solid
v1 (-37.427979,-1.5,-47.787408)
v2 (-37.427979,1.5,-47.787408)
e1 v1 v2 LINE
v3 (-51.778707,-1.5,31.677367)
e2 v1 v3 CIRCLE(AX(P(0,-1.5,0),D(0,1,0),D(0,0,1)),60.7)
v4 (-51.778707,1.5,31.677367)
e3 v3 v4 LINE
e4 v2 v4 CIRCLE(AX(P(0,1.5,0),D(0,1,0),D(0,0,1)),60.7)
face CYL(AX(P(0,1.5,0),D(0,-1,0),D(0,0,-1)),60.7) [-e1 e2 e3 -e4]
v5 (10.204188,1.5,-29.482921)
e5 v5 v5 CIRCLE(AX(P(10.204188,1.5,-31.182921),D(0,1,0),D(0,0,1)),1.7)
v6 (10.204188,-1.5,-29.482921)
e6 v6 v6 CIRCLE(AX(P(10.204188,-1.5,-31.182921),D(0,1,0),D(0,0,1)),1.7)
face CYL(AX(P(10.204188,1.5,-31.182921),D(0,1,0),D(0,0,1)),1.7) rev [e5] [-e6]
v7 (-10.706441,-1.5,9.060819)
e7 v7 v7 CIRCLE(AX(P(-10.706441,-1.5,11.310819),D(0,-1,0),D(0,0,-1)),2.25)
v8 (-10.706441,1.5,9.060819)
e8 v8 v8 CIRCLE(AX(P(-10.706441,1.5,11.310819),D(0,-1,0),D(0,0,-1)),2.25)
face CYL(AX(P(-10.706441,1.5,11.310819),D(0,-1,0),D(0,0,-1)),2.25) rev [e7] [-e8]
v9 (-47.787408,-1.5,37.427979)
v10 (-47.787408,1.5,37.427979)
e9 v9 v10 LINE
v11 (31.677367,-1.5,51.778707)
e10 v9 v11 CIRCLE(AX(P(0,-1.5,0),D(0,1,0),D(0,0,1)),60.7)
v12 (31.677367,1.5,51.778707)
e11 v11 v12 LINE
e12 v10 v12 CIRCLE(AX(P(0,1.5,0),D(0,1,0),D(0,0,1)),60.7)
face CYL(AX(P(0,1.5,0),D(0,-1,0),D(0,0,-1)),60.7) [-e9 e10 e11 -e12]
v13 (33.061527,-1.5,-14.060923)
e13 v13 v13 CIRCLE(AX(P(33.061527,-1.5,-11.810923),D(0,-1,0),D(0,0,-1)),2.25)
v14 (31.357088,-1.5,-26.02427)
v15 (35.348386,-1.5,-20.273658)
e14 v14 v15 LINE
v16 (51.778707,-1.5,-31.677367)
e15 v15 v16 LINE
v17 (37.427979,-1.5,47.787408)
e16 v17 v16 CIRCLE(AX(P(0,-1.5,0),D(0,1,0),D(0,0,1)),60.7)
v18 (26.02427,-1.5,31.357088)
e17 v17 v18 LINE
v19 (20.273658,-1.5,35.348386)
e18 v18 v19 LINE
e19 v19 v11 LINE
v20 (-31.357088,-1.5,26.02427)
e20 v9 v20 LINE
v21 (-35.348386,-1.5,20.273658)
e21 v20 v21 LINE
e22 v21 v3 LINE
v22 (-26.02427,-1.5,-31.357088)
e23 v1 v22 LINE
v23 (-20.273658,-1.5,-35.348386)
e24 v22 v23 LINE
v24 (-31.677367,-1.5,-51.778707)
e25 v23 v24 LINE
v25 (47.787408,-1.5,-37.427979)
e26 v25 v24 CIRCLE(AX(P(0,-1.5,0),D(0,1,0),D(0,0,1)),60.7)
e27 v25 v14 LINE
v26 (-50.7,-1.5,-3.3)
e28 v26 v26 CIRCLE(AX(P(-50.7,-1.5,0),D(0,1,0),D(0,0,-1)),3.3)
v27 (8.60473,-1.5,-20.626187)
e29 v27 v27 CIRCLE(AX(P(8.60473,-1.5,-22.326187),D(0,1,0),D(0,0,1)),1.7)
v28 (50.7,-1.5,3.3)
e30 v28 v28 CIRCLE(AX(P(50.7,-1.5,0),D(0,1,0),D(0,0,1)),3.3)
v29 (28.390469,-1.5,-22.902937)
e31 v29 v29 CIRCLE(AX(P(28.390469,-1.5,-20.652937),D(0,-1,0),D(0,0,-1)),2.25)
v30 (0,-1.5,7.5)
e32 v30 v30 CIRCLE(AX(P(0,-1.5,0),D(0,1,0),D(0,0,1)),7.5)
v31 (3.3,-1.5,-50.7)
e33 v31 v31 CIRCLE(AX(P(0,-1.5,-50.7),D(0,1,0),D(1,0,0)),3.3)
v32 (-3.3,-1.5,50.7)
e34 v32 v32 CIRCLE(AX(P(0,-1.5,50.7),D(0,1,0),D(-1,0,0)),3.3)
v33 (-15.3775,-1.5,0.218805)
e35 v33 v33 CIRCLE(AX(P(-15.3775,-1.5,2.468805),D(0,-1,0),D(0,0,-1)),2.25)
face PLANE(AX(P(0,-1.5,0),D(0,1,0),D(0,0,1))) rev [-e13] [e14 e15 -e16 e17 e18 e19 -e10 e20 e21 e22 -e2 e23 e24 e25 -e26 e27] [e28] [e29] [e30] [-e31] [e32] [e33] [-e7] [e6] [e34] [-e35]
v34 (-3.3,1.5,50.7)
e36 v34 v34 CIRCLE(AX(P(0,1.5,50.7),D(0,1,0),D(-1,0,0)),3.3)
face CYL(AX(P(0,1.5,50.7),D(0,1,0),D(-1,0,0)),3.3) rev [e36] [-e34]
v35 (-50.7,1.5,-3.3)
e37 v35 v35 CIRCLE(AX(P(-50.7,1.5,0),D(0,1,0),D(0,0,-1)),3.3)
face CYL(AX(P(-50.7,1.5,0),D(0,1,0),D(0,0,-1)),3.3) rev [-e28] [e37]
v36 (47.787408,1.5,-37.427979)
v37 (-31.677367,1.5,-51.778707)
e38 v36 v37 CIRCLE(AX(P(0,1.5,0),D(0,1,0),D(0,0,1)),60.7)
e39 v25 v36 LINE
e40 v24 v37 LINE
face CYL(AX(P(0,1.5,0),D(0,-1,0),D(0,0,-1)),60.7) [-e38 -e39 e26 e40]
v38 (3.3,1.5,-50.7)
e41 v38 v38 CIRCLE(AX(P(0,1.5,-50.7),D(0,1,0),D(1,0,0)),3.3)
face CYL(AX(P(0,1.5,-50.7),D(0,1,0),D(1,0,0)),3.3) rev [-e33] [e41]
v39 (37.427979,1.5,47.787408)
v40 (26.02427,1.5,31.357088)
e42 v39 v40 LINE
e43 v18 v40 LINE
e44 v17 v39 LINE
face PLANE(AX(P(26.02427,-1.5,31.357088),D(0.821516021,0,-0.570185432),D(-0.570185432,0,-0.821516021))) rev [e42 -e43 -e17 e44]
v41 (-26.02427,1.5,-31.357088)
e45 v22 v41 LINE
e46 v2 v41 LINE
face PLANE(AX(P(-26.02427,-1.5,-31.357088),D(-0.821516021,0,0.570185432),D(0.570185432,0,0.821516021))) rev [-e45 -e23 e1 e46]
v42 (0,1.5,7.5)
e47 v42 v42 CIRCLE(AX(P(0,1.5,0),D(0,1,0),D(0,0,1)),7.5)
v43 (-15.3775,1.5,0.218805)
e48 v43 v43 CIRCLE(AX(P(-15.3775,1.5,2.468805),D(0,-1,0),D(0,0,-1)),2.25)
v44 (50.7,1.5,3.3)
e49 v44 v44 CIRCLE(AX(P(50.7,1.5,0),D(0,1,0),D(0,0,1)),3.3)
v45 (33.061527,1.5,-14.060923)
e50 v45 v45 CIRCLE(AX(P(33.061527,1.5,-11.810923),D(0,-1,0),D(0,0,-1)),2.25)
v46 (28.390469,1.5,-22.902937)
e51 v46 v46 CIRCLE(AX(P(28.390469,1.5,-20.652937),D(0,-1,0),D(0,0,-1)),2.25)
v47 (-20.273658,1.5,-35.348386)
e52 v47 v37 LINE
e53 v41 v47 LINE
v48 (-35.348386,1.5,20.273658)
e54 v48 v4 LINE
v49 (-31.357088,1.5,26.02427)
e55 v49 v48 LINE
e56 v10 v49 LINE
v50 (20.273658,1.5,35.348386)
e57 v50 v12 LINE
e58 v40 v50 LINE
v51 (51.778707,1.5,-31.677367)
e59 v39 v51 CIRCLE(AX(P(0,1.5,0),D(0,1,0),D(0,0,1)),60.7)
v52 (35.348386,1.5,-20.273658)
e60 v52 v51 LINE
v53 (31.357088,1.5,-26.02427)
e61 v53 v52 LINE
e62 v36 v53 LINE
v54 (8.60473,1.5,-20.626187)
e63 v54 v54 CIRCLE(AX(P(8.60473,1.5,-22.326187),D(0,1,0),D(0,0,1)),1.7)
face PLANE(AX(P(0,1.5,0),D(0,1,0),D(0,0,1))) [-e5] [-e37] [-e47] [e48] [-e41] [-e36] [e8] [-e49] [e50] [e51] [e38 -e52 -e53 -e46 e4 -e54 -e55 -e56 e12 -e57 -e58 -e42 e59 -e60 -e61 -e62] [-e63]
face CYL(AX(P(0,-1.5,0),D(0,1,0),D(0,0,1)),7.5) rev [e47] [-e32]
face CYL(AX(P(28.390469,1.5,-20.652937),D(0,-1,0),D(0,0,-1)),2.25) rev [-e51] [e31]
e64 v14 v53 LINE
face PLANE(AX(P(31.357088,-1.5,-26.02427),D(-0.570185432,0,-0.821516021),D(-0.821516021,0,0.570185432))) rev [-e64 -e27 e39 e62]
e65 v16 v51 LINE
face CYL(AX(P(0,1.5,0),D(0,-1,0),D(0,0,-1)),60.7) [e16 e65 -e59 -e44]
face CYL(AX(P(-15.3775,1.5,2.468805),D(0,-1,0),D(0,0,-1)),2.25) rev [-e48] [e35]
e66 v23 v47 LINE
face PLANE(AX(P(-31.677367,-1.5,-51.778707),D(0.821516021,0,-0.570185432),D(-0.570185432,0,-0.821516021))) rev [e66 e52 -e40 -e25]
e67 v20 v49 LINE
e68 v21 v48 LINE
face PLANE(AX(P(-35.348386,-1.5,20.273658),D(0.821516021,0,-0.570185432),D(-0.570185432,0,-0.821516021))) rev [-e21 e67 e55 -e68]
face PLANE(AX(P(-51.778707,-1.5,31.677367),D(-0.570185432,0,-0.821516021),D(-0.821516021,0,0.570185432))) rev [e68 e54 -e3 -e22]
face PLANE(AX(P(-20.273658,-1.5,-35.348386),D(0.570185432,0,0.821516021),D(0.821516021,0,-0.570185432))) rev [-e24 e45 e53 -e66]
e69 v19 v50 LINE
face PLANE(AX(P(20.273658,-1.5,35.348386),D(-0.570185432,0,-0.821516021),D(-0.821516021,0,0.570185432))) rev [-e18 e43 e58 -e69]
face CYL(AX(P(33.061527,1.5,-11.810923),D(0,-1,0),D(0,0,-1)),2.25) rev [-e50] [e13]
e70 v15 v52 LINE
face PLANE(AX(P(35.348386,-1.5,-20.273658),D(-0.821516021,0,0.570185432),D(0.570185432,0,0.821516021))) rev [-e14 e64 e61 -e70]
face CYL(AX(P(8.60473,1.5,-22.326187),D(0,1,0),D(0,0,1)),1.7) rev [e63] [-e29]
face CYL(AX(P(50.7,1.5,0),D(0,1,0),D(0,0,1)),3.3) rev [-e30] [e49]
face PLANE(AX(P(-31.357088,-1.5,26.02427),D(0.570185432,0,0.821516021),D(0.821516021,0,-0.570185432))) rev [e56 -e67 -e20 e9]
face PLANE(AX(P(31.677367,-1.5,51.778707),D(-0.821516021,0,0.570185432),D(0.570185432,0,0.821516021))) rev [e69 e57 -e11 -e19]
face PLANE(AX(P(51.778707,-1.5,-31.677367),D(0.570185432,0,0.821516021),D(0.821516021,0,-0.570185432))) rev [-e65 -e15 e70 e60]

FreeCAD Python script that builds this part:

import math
import FreeCAD as App
import Part
import Sketcher
from FreeCAD import Vector

doc = App.newDocument("Part")
body = doc.addObject("PartDesign::Body", "Body")

sketch1 = body.newObject("Sketcher::SketchObject", "Sketch")
sketch1.AttachmentSupport = (doc.getObject("XZ_Plane"), [""])
sketch1.MapMode = "FlatFace"
sketch1.addGeometry(Part.Circle(Vector(0, 0, 0), Vector(0, 0, 1), 61), False)
sketch1.addConstraint(Sketcher.Constraint("Coincident", 0, 3, -1, 1))
sketch1.addConstraint(Sketcher.Constraint("Diameter", 0, 121.4))
pad1 = body.newObject("PartDesign::Pad", "Pad")
pad1.Profile = sketch1
pad1.Length = 3
pad1.Midplane = True

sketch2 = body.newObject("Sketcher::SketchObject", "Sketch001")
sketch2.AttachmentSupport = (doc.getObject("XZ_Plane"), [""])
sketch2.MapMode = "FlatFace"
sketch2.AttachmentOffset = App.Placement(Vector(0, 0, -1.5), App.Rotation())
sketch2.addGeometry(Part.Circle(Vector(50.7, 0, 0), Vector(0, 0, 1), 3.3), False)
sketch2.addConstraint(Sketcher.Constraint("PointOnObject", 0, 3, -1))
sketch2.addConstraint(Sketcher.Constraint("Diameter", 0, 6.6))
sketch2.addConstraint(Sketcher.Constraint("DistanceX", -1, 1, 0, 3, 50.7))
doc.recompute()
hole = body.newObject("PartDesign::Hole", "Hole")
hole.Profile = sketch2
hole.ThreadType = "None"
hole.Diameter = 6.6
hole.DepthType = "ThroughAll"
hole.Reversed = True
doc.recompute()

polarpattern = body.newObject("PartDesign::PolarPattern", "PolarPattern")
polarpattern.Originals = [hole]
polarpattern.Axis = (doc.getObject("Y_Axis"), [""])
polarpattern.Angle = 360
polarpattern.Occurrences = 4
body.Tip = polarpattern

sketch3 = body.newObject("Sketcher::SketchObject", "Sketch002")
sketch3.AttachmentSupport = (doc.getObject("XZ_Plane"), [""])
sketch3.MapMode = "FlatFace"
sketch3.AttachmentOffset = App.Placement(Vector(0, 0, -1.5), App.Rotation())
sketch3.addGeometry(Part.Circle(Vector(0, 0, 0), Vector(0, 0, 1), 8), False)
sketch3.addConstraint(Sketcher.Constraint("Coincident", 0, 3, -1, 1))
sketch3.addConstraint(Sketcher.Constraint("Diameter", 0, 15.0))
pocket1 = body.newObject("PartDesign::Pocket", "Pocket")
pocket1.Profile = sketch3
pocket1.Type = "ThroughAll"
pocket1.Reversed = True

sketch4 = body.newObject("Sketcher::SketchObject", "Sketch003")
sketch4.AttachmentSupport = (doc.getObject("XZ_Plane"), [""])
sketch4.MapMode = "FlatFace"
sketch4.AttachmentOffset = App.Placement(Vector(0, 0, 1.5), App.Rotation())
sketch4.addGeometry(Part.Circle(Vector(-15.4, 2.5, 0), Vector(0, 0, 1), 2.2), False)
sketch4.addGeometry(Part.Circle(Vector(-10.7, 11.3, 0), Vector(0, 0, 1), 2.2), False)
sketch4.addGeometry(Part.Circle(Vector(28.4, -20.7, 0), Vector(0, 0, 1), 2.2), False)
sketch4.addGeometry(Part.Circle(Vector(33.1, -11.8, 0), Vector(0, 0, 1), 2.2), False)
sketch4.addConstraint(Sketcher.Constraint("Equal", 0, 1))
sketch4.addConstraint(Sketcher.Constraint("Equal", 1, 2))
sketch4.addConstraint(Sketcher.Constraint("Equal", 2, 3))
sketch4.addConstraint(Sketcher.Constraint("Diameter", 0, 4.5))
sketch4.addConstraint(Sketcher.Constraint("DistanceX", 0, 3, -1, 1, 15.3775))
sketch4.addConstraint(Sketcher.Constraint("DistanceX", 1, 3, -1, 1, 10.706441))
sketch4.addConstraint(Sketcher.Constraint("DistanceY", -1, 1, 1, 3, 11.310819))
sketch4.addConstraint(Sketcher.Constraint("DistanceX", -1, 1, 2, 3, 28.390469))
sketch4.addConstraint(Sketcher.Constraint("DistanceY", 2, 3, 0, 3, 23.121742))
sketch4.addConstraint(Sketcher.Constraint("DistanceX", 2, 3, 3, 3, 4.671059))
sketch4.addConstraint(Sketcher.Constraint("DistanceY", 3, 3, 1, 3, 23.121742))
sketch4.addConstraint(Sketcher.Constraint("DistanceY", -1, 1, 0, 3, 2.468805))
pocket2 = body.newObject("PartDesign::Pocket", "Pocket001")
pocket2.Profile = sketch4
pocket2.Type = "ThroughAll"

sketch5 = body.newObject("Sketcher::SketchObject", "Sketch004")
sketch5.AttachmentSupport = (doc.getObject("XZ_Plane"), [""])
sketch5.MapMode = "FlatFace"
sketch5.AttachmentOffset = App.Placement(Vector(0, 0, -1.5), App.Rotation())
sketch5.addGeometry(Part.LineSegment(Vector(20, 35, 0), Vector(32, 52, 0)), False)
sketch5.addGeometry(Part.ArcOfCircle(Part.Circle(Vector(0, 0, 0), Vector(0, 0, 1), 61), math.radians(51.93), math.radians(58.54)), False)
sketch5.addGeometry(Part.LineSegment(Vector(37, 48, 0), Vector(26, 31, 0)), False)
sketch5.addGeometry(Part.LineSegment(Vector(26, 31, 0), Vector(20, 35, 0)), False)
sketch5.addConstraint(Sketcher.Constraint("Coincident", 0, 2, 1, 2))
sketch5.addConstraint(Sketcher.Constraint("Coincident", 1, 1, 2, 1))
sketch5.addConstraint(Sketcher.Constraint("Coincident", 2, 2, 3, 1))
sketch5.addConstraint(Sketcher.Constraint("Coincident", 3, 2, 0, 1))
sketch5.addConstraint(Sketcher.Constraint("Coincident", 1, 3, -1, 1))
sketch5.addConstraint(Sketcher.Constraint("Parallel", 0, 2))
sketch5.addConstraint(Sketcher.Constraint("Perpendicular", 2, 3))
sketch5.addConstraint(Sketcher.Constraint("Equal", 0, 2))
sketch5.addConstraint(Sketcher.Constraint("Radius", 1, 60.7))
sketch5.addConstraint(Sketcher.Constraint("Distance", 0, 20.0))
sketch5.addConstraint(Sketcher.Constraint("Distance", 3, 7.0))
sketch5.addConstraint(Sketcher.Constraint("DistanceY", 2, 2, 3, 2, 3.991298))
pocket3 = body.newObject("PartDesign::Pocket", "Pocket002")
pocket3.Profile = sketch5
pocket3.Type = "ThroughAll"
pocket3.Reversed = True
doc.recompute()

polarpattern2 = body.newObject("PartDesign::PolarPattern", "PolarPattern001")
polarpattern2.Originals = [pocket3]
polarpattern2.Axis = (doc.getObject("Y_Axis"), [""])
polarpattern2.Angle = 360
polarpattern2.Occurrences = 4
body.Tip = polarpattern2

sketch6 = body.newObject("Sketcher::SketchObject", "Sketch005")
sketch6.AttachmentSupport = (doc.getObject("XZ_Plane"), [""])
sketch6.MapMode = "FlatFace"
sketch6.AttachmentOffset = App.Placement(Vector(0, 0, -1.5), App.Rotation())
sketch6.addGeometry(Part.Circle(Vector(8.6, -22.3, 0), Vector(0, 0, 1), 1.7), False)
sketch6.addGeometry(Part.Circle(Vector(10.2, -31.2, 0), Vector(0, 0, 1), 1.7), False)
sketch6.addConstraint(Sketcher.Constraint("Equal", 0, 1))
sketch6.addConstraint(Sketcher.Constraint("Diameter", 0, 3.4))
sketch6.addConstraint(Sketcher.Constraint("DistanceX", -1, 1, 0, 3, 8.60473))
sketch6.addConstraint(Sketcher.Constraint("DistanceY", 1, 3, -1, 1, 31.182921))
sketch6.addConstraint(Sketcher.Constraint("DistanceX", 0, 3, 1, 3, 1.599458))
sketch6.addConstraint(Sketcher.Constraint("DistanceY", 0, 3, -1, 1, 22.326187))
doc.recompute()
hole2 = body.newObject("PartDesign::Hole", "Hole001")
hole2.Profile = sketch6
hole2.ThreadType = "None"
hole2.Diameter = 3.4
hole2.DepthType = "ThroughAll"
hole2.Reversed = True

doc.recompute()
